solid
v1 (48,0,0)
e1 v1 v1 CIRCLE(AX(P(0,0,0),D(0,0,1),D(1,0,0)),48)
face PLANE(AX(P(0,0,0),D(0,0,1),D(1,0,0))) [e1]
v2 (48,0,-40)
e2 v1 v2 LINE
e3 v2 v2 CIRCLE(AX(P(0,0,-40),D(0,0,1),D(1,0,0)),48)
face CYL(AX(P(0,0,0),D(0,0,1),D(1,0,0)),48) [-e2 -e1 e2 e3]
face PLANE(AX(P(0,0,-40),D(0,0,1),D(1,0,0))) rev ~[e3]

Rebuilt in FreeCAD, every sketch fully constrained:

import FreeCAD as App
import Part
import Sketcher

V = App.Vector
Q = App.Units.Quantity

doc = App.newDocument("Part")
params = doc.addObject("Spreadsheet::Sheet", "Params")
for row, (alias, value) in enumerate([
    ("sketch1_diameter", "96 mm"),
    ("pad1_length", "40 mm"),
], start=1):
    params.set(f"A{row}", alias)
    params.set(f"B{row}", "=" + value)
    params.setAlias(f"B{row}", alias)

body = doc.addObject("PartDesign::Body", "Body")

# Sketch on XY plane
sketch1 = doc.addObject("Sketcher::SketchObject", "Sketch")
body.addObject(sketch1)
sketch1.AttachmentSupport = (doc.XY_Plane, [""])
sketch1.MapMode = "FlatFace"
sketch1.addGeometry(Part.Circle(V(0, 0, 0), V(0, 0, 1), 48), False)
sketch1.addConstraint(Sketcher.Constraint("Coincident", 0, 3, -1, 1))
sketch1.addConstraint(Sketcher.Constraint("Diameter", 0, Q("96 mm")))
sketch1.setExpression("Constraints[1]", "Params.sketch1_diameter")
pad1 = doc.addObject("PartDesign::Pad", "Pad")
body.addObject(pad1)
pad1.Profile = sketch1
pad1.setExpression("Length", "Params.pad1_length")
pad1.Reversed = True

doc.recompute()
